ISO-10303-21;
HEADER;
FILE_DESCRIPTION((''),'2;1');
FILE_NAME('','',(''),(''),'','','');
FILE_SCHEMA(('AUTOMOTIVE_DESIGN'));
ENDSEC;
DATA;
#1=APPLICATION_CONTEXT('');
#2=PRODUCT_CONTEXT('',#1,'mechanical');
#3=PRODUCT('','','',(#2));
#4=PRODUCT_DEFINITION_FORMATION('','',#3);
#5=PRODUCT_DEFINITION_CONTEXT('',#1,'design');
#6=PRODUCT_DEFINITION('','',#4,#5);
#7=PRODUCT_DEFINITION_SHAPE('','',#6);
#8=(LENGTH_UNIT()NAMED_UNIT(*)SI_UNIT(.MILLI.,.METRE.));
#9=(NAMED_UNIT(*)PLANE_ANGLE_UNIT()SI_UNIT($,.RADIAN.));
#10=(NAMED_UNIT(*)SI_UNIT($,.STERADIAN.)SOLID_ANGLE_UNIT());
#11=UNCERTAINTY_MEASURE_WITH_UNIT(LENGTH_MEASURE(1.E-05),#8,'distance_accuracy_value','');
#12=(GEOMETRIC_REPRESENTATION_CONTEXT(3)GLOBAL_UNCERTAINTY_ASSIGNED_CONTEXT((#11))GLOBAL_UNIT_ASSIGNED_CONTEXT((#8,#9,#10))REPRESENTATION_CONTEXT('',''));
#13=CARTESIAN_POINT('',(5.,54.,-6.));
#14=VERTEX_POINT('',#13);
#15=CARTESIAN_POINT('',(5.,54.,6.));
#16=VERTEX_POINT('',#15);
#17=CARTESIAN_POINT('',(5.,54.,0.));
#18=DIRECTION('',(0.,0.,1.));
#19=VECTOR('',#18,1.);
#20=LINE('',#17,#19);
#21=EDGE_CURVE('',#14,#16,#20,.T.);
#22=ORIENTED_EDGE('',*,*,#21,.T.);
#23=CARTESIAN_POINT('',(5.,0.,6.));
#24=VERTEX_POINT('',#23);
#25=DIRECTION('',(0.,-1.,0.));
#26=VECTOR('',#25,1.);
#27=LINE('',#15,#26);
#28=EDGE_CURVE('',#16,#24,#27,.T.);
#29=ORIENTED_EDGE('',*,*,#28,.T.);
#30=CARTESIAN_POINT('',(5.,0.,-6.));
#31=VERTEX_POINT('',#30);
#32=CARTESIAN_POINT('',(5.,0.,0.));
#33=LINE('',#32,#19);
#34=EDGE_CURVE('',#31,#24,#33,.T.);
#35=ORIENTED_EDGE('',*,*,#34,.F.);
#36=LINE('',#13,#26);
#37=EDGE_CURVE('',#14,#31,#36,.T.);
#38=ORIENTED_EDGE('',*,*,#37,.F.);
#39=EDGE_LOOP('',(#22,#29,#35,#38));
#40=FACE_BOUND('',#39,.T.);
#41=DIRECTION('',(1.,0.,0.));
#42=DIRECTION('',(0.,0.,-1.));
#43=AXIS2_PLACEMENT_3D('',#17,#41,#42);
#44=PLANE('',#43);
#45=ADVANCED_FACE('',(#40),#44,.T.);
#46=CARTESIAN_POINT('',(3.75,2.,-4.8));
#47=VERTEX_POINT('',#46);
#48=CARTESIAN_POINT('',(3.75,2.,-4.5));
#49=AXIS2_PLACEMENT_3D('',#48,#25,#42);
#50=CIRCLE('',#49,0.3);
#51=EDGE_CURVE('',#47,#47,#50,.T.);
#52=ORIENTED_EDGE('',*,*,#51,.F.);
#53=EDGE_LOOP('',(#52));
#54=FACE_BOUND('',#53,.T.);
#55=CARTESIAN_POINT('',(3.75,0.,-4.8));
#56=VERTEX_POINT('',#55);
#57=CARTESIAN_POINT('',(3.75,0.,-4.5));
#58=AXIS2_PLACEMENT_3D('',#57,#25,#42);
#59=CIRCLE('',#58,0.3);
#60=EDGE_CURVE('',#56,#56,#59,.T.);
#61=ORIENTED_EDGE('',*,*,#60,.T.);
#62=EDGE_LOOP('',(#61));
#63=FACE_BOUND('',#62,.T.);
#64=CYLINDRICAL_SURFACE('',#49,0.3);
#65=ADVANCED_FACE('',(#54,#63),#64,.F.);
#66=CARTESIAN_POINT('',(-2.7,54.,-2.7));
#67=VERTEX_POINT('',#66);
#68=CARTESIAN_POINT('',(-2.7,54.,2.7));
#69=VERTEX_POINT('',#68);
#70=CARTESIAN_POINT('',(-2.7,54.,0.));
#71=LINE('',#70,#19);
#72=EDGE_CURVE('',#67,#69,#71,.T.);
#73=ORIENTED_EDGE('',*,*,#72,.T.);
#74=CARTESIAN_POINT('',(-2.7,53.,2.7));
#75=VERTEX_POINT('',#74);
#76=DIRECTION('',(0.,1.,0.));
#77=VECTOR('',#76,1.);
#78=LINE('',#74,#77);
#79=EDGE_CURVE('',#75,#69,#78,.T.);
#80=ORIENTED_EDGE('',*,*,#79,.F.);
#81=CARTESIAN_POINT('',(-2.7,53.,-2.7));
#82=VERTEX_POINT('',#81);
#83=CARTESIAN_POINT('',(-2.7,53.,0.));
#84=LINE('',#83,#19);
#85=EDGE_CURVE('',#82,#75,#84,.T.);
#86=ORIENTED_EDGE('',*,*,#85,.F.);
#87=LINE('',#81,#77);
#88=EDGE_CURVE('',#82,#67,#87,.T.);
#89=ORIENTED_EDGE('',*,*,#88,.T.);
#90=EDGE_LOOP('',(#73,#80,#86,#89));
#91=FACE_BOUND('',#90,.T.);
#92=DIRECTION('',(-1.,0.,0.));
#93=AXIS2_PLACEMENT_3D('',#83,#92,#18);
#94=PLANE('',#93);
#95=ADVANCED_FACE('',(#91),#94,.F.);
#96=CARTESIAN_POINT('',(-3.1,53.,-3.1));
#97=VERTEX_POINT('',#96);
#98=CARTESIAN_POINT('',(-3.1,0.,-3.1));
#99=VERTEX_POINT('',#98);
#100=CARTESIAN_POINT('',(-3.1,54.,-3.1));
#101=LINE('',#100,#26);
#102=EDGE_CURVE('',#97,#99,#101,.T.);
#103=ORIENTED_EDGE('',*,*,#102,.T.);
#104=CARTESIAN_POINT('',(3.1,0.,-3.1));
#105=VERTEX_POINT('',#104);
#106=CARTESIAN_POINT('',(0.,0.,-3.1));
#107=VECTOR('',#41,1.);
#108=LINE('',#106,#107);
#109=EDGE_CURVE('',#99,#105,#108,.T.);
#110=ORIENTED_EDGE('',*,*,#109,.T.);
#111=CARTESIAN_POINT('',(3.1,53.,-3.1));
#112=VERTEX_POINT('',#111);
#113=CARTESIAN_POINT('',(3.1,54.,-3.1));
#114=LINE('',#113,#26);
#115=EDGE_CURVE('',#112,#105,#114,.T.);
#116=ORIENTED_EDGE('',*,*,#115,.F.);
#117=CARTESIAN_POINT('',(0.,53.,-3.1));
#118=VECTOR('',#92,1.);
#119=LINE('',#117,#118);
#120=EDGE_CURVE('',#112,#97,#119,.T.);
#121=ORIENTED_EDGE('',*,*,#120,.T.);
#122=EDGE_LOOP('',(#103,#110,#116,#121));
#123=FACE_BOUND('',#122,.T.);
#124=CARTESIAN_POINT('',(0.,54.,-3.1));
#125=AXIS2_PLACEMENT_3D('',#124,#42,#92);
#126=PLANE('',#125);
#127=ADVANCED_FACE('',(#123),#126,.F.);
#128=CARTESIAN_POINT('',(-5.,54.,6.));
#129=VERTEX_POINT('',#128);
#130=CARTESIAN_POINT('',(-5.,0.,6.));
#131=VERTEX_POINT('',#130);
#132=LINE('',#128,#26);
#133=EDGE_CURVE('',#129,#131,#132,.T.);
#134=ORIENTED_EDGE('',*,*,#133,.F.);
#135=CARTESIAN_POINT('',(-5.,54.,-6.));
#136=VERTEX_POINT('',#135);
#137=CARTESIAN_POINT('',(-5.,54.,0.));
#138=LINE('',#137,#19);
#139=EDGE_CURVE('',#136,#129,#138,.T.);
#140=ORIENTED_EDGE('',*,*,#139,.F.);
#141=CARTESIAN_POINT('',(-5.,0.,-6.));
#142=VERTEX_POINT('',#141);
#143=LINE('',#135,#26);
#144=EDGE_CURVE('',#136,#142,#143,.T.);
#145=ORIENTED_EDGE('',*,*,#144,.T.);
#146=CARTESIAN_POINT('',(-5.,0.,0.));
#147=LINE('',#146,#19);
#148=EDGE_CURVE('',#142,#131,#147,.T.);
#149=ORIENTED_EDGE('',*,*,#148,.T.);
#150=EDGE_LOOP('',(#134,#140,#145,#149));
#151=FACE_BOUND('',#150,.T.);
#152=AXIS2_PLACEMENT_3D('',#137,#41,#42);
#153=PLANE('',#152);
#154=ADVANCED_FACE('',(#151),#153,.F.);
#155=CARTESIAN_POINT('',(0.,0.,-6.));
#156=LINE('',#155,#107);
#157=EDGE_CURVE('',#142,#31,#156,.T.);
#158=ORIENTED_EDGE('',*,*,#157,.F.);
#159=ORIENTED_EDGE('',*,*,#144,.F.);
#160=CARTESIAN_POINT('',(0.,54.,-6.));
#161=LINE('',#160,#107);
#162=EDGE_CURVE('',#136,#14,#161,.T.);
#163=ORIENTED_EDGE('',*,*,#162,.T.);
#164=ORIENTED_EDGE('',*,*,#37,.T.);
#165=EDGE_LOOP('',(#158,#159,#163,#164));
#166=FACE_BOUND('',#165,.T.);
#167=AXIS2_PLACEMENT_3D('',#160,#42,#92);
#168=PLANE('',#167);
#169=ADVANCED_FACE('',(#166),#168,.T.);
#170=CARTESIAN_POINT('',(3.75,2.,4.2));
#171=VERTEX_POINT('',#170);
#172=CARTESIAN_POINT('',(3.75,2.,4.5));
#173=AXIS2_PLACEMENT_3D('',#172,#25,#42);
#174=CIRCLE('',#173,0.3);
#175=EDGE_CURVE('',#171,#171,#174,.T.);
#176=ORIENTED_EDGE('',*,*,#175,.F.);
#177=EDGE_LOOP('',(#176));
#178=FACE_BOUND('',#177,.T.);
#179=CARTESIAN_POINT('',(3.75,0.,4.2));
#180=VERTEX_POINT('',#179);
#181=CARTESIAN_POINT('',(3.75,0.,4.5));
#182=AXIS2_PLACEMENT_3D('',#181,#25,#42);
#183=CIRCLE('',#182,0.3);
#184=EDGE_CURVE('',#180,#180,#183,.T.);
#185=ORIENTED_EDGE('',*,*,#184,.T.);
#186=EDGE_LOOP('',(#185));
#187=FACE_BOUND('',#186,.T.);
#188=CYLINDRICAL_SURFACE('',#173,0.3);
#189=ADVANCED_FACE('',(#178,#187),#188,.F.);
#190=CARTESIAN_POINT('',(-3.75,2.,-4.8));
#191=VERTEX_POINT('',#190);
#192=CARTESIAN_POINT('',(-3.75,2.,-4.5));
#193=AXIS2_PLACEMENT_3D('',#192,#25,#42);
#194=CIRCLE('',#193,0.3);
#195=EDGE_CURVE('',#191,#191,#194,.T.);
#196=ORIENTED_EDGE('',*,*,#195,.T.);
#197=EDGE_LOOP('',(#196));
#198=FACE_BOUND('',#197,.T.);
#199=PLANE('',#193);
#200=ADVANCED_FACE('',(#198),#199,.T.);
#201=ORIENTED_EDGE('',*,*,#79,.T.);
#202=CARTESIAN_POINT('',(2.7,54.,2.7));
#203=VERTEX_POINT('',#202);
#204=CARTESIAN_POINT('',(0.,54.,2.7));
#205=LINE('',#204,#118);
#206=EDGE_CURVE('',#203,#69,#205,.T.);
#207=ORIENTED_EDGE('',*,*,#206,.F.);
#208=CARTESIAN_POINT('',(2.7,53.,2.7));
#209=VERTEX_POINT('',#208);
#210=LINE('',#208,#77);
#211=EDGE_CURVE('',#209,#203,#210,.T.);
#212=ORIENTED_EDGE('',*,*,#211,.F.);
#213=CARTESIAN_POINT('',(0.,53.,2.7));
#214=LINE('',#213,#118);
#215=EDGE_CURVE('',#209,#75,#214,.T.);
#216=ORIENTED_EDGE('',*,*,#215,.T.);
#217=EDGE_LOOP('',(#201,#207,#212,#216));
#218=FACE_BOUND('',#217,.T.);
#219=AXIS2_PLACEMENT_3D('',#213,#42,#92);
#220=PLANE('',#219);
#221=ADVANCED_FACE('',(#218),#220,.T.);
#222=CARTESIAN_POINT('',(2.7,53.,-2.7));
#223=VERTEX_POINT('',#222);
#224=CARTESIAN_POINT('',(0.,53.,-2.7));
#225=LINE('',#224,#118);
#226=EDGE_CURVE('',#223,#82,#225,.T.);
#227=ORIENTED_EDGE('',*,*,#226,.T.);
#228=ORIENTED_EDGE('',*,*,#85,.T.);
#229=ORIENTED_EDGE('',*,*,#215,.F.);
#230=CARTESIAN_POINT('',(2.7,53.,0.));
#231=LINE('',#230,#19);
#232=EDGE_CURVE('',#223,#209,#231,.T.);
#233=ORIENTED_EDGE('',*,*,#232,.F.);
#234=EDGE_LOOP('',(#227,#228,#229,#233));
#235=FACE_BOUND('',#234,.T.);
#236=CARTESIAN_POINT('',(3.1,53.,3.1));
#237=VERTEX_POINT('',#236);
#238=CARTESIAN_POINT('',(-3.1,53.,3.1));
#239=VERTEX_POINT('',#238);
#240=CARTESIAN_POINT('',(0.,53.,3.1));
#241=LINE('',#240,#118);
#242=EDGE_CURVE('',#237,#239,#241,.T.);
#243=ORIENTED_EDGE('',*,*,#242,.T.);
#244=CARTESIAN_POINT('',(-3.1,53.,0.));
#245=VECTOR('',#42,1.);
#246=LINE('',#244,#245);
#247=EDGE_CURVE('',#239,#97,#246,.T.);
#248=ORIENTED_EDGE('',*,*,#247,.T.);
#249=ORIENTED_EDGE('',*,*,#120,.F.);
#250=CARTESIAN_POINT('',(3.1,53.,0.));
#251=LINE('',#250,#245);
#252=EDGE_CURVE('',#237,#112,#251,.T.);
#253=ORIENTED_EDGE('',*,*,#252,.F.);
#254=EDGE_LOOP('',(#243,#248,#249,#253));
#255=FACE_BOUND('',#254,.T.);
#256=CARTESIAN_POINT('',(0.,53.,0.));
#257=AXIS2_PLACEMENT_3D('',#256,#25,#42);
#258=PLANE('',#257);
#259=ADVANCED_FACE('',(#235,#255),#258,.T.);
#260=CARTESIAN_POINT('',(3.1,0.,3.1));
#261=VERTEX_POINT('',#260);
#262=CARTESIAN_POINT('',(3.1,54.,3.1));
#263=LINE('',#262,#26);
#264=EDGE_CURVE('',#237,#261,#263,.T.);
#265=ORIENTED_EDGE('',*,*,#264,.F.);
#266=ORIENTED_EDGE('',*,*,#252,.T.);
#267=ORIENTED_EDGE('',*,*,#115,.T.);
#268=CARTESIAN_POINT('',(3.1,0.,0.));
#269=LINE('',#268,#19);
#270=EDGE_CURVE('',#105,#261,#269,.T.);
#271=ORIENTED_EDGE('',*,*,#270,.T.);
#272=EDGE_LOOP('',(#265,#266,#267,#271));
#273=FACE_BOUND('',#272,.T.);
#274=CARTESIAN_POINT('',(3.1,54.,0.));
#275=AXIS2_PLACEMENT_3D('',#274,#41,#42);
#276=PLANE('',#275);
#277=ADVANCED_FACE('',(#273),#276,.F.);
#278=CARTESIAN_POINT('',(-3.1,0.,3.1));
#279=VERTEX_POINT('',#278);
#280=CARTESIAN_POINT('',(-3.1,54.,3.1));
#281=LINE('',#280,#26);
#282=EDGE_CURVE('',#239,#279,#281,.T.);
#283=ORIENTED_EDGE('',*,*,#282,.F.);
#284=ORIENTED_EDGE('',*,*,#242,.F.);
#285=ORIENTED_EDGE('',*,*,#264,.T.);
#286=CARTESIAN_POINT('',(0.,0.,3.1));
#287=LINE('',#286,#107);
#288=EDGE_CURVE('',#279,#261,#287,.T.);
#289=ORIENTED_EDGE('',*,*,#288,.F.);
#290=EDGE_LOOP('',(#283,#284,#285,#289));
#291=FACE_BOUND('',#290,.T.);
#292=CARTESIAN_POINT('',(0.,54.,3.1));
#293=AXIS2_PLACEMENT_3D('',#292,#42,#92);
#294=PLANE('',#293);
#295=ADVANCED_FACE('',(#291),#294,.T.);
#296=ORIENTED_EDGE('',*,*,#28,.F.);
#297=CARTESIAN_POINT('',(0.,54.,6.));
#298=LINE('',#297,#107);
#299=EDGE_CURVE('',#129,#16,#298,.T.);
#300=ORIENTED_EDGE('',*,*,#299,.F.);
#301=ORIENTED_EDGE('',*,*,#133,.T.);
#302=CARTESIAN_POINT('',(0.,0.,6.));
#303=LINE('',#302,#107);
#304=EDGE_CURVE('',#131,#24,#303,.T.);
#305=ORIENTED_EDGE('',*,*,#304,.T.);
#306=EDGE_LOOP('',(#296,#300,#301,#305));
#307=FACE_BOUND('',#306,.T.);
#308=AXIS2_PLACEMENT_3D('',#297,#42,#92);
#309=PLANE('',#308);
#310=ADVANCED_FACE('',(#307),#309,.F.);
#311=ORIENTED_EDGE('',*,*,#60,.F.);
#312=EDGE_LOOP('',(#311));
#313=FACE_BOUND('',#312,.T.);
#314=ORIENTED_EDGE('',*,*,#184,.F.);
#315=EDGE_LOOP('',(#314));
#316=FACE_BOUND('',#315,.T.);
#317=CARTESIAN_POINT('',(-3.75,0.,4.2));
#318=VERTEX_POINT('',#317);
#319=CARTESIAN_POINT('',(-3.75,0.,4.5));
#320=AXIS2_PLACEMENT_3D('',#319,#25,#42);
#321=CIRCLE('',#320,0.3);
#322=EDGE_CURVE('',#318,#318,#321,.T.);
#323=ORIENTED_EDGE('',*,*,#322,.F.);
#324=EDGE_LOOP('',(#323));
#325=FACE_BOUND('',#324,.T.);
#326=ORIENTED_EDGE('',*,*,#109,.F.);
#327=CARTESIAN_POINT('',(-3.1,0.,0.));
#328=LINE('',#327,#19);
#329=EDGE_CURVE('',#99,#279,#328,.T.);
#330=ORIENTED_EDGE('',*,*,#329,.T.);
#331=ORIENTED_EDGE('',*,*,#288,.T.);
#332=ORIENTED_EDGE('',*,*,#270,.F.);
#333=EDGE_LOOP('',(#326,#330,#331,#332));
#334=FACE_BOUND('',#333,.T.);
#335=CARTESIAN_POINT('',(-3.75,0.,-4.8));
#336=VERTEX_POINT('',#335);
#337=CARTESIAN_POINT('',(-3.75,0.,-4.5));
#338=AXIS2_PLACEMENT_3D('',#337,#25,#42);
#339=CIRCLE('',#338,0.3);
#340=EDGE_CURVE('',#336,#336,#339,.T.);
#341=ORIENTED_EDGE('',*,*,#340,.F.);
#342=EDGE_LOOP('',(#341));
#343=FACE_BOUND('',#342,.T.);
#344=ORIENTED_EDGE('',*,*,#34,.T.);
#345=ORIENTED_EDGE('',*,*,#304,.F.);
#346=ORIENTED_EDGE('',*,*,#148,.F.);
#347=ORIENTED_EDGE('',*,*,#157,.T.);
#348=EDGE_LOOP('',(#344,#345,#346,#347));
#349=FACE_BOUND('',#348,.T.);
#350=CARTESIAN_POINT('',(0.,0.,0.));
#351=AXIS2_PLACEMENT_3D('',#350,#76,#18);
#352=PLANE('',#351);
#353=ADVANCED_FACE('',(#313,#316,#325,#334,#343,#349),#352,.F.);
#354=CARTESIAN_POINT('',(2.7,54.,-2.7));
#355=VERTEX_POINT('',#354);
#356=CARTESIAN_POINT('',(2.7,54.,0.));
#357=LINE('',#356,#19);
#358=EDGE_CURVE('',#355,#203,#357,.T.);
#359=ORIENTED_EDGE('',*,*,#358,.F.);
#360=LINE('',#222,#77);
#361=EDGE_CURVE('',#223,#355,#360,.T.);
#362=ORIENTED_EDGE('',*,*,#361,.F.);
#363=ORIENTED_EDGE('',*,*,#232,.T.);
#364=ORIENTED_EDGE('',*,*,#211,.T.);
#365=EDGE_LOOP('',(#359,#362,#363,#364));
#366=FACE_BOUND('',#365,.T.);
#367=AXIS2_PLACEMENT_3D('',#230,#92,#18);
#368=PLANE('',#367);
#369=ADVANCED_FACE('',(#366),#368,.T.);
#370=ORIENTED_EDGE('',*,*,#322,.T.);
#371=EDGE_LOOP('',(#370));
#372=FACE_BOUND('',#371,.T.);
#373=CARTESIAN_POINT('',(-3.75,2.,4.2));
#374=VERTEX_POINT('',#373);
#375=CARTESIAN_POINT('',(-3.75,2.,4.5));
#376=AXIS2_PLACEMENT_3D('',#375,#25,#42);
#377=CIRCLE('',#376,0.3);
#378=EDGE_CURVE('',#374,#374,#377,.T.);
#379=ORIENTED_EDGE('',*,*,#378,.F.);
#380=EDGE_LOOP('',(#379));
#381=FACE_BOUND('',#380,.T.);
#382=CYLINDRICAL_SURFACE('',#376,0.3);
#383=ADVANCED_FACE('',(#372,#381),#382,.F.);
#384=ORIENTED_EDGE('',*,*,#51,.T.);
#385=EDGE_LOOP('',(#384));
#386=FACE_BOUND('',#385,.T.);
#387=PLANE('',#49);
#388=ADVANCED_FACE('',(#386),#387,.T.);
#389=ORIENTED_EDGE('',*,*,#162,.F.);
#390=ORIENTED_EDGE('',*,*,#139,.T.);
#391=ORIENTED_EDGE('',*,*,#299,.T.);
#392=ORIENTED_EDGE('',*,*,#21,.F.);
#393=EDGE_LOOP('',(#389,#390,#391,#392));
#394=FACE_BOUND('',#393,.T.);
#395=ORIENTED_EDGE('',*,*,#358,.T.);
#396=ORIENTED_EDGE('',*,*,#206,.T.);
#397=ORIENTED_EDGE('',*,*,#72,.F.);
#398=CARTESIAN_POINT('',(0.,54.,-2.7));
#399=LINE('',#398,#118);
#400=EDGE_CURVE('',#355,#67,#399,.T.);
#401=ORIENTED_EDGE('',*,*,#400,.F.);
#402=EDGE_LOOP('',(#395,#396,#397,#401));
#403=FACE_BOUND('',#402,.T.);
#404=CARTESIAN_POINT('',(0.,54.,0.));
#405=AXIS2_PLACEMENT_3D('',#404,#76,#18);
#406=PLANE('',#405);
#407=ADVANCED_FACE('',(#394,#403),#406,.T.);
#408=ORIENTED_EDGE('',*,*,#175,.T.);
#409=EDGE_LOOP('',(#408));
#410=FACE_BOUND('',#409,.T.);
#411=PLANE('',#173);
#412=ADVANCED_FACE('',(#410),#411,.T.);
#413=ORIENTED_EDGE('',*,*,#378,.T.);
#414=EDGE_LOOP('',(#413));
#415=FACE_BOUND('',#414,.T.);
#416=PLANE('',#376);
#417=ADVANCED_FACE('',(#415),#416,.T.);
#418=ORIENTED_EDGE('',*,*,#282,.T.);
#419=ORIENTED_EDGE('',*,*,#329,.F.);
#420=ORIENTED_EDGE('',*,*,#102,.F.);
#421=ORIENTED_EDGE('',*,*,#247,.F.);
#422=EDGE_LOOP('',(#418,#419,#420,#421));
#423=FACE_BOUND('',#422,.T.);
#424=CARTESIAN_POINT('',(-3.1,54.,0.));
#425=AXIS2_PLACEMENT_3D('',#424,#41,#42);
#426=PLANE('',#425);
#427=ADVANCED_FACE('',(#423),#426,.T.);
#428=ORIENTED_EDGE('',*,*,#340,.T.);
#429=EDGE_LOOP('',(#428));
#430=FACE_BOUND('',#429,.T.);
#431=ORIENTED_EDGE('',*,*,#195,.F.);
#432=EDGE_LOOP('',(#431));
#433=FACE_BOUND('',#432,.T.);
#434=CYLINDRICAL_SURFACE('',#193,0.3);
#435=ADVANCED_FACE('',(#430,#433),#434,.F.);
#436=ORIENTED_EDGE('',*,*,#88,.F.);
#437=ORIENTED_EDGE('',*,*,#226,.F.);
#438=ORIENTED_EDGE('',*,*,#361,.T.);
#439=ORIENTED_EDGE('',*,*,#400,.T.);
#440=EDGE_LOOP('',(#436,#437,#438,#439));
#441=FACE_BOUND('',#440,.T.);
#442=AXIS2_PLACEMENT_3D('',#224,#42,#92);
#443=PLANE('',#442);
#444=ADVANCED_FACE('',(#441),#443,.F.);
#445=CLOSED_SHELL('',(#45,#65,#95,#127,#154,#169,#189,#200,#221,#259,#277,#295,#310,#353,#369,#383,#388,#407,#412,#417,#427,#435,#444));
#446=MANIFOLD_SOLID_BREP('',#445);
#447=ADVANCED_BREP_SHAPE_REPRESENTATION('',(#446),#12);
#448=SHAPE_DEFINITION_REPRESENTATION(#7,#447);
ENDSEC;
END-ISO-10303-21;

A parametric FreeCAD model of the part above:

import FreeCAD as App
import Part
import Sketcher

V = App.Vector


def add_polygon(sketch, points):
    """Adds a closed chain of lines whose ends are joined by coincident constraints."""
    first, n = sketch.GeometryCount, len(points)
    for a, b in zip(points, points[1:] + points[:1]):
        sketch.addGeometry(Part.LineSegment(App.Vector(*a, 0), App.Vector(*b, 0)), False)
    for i in range(n):
        sketch.addConstraint(Sketcher.Constraint("Coincident", first + i, 2, first + (i + 1) % n, 1))

doc = App.newDocument("Part")
params = doc.addObject("Spreadsheet::Sheet", "Params")
for row, (alias, value) in enumerate([
    ("sketch1_width", "10 mm"),
    ("sketch1_height", "12 mm"),
    ("sketch1_width2", "6.2 mm"),
    ("pad1_length", "54 mm"),
    ("sketch2_width", "10 mm"),
    ("sketch2_height", "12 mm"),
    ("sketch2_width2", "5.4 mm"),
    ("pad2_length", "1 mm"),
    ("sketch3_diameter", "0.6 mm"),
    ("pocket1_length", "2 mm"),
], start=1):
    params.set(f"A{row}", alias)
    params.set(f"B{row}", "=" + value)
    params.setAlias(f"B{row}", alias)

body = doc.addObject("PartDesign::Body", "Body")

# Sketch on XZ plane
sketch1 = body.newObject("Sketcher::SketchObject", "Sketch")
sketch1.AttachmentSupport = (doc.getObject("XZ_Plane"), [""])
sketch1.MapMode = "FlatFace"
add_polygon(sketch1, [(-5, -6), (-5, 6), (5, 6), (5, -6)])  # lines 0-3
add_polygon(sketch1, [(3.1, 3.1), (-3.1, 3.1), (-3.1, -3.1), (3.1, -3.1)])  # lines 4-7
sketch1.addConstraint(Sketcher.Constraint("Vertical", 0))
sketch1.addConstraint(Sketcher.Constraint("Horizontal", 1))
sketch1.addConstraint(Sketcher.Constraint("Vertical", 2))
sketch1.addConstraint(Sketcher.Constraint("Horizontal", 3))
sketch1.addConstraint(Sketcher.Constraint("Horizontal", 4))
sketch1.addConstraint(Sketcher.Constraint("Vertical", 5))
sketch1.addConstraint(Sketcher.Constraint("Horizontal", 6))
sketch1.addConstraint(Sketcher.Constraint("Vertical", 7))
sketch1.addConstraint(Sketcher.Constraint("Symmetric", 0, 2, 2, 2, -1, 1))
sketch1.addConstraint(Sketcher.Constraint("Symmetric", 4, 2, 6, 2, -1, 1))
sketch1.addConstraint(Sketcher.Constraint("Equal", 6, 5))
sketch1.addConstraint(Sketcher.Constraint("DistanceX", 1, 1, 1, 2, 10.0))
sketch1.addConstraint(Sketcher.Constraint("DistanceY", 0, 1, 0, 2, 12.0))
sketch1.addConstraint(Sketcher.Constraint("DistanceX", 4, 2, 4, 1, 6.2))
sketch1.setExpression("Constraints[19]", "Params.sketch1_width")
sketch1.setExpression("Constraints[20]", "Params.sketch1_height")
sketch1.setExpression("Constraints[21]", "Params.sketch1_width2")
pad1 = body.newObject("PartDesign::Pad", "Pad")
pad1.Profile = sketch1
pad1.setExpression("Length", "Params.pad1_length")
pad1.Reversed = True

# Sketch on XZ plane
sketch2 = body.newObject("Sketcher::SketchObject", "Sketch001")
sketch2.AttachmentSupport = (doc.getObject("XZ_Plane"), [""])
sketch2.MapMode = "FlatFace"
sketch2.AttachmentOffset = App.Placement(V(0, 0, -54), App.Rotation())
add_polygon(sketch2, [(-5, -6), (-5, 6), (5, 6), (5, -6)])  # lines 0-3
add_polygon(sketch2, [(2.7, 2.7), (-2.7, 2.7), (-2.7, -2.7), (2.7, -2.7)])  # lines 4-7
sketch2.addConstraint(Sketcher.Constraint("Vertical", 0))
sketch2.addConstraint(Sketcher.Constraint("Horizontal", 1))
sketch2.addConstraint(Sketcher.Constraint("Vertical", 2))
sketch2.addConstraint(Sketcher.Constraint("Horizontal", 3))
sketch2.addConstraint(Sketcher.Constraint("Horizontal", 4))
sketch2.addConstraint(Sketcher.Constraint("Vertical", 5))
sketch2.addConstraint(Sketcher.Constraint("Horizontal", 6))
sketch2.addConstraint(Sketcher.Constraint("Vertical", 7))
sketch2.addConstraint(Sketcher.Constraint("Symmetric", 0, 2, 2, 2, -1, 1))
sketch2.addConstraint(Sketcher.Constraint("Symmetric", 4, 2, 6, 2, -1, 1))
sketch2.addConstraint(Sketcher.Constraint("Equal", 6, 5))
sketch2.addConstraint(Sketcher.Constraint("DistanceX", 1, 1, 1, 2, 10.0))
sketch2.addConstraint(Sketcher.Constraint("DistanceY", 0, 1, 0, 2, 12.0))
sketch2.addConstraint(Sketcher.Constraint("DistanceX", 4, 2, 4, 1, 5.4))
sketch2.setExpression("Constraints[19]", "Params.sketch2_width")
sketch2.setExpression("Constraints[20]", "Params.sketch2_height")
sketch2.setExpression("Constraints[21]", "Params.sketch2_width2")
pad2 = body.newObject("PartDesign::Pad", "Pad001")
pad2.Profile = sketch2
pad2.setExpression("Length", "Params.pad2_length")

# Sketch on XZ plane
sketch3 = body.newObject("Sketcher::SketchObject", "Sketch002")
sketch3.AttachmentSupport = (doc.getObject("XZ_Plane"), [""])
sketch3.MapMode = "FlatFace"
sketch3.addGeometry(Part.Circle(V(-3.75, 4.5, 0), V(0, 0, 1), 0.3), False)
sketch3.addGeometry(Part.Circle(V(3.75, -4.5, 0), V(0, 0, 1), 0.3), False)
sketch3.addGeometry(Part.Circle(V(3.75, 4.5, 0), V(0, 0, 1), 0.3), False)
sketch3.addGeometry(Part.Circle(V(-3.75, -4.5, 0), V(0, 0, 1), 0.3), False)
sketch3.addConstraint(Sketcher.Constraint("Equal", 0, 1))
sketch3.addConstraint(Sketcher.Constraint("Equal", 1, 2))
sketch3.addConstraint(Sketcher.Constraint("Equal", 2, 3))
sketch3.addConstraint(Sketcher.Constraint("Symmetric", 0, 3, 1, 3, -1, 1))
sketch3.addConstraint(Sketcher.Constraint("Symmetric", 2, 3, 3, 3, -1, 1))
sketch3.addConstraint(Sketcher.Constraint("Symmetric", 0, 3, 2, 3, -2))
sketch3.addConstraint(Sketcher.Constraint("Diameter", 0, 0.6))
sketch3.addConstraint(Sketcher.Constraint("DistanceY", 1, 3, 0, 3, 9.0))
sketch3.addConstraint(Sketcher.Constraint("DistanceX", 0, 3, 1, 3, 7.5))
sketch3.setExpression("Constraints[6]", "Params.sketch3_diameter")
pocket1 = body.newObject("PartDesign::Pocket", "Pocket")
pocket1.Profile = sketch3
pocket1.setExpression("Length", "Params.pocket1_length")

doc.recompute()
